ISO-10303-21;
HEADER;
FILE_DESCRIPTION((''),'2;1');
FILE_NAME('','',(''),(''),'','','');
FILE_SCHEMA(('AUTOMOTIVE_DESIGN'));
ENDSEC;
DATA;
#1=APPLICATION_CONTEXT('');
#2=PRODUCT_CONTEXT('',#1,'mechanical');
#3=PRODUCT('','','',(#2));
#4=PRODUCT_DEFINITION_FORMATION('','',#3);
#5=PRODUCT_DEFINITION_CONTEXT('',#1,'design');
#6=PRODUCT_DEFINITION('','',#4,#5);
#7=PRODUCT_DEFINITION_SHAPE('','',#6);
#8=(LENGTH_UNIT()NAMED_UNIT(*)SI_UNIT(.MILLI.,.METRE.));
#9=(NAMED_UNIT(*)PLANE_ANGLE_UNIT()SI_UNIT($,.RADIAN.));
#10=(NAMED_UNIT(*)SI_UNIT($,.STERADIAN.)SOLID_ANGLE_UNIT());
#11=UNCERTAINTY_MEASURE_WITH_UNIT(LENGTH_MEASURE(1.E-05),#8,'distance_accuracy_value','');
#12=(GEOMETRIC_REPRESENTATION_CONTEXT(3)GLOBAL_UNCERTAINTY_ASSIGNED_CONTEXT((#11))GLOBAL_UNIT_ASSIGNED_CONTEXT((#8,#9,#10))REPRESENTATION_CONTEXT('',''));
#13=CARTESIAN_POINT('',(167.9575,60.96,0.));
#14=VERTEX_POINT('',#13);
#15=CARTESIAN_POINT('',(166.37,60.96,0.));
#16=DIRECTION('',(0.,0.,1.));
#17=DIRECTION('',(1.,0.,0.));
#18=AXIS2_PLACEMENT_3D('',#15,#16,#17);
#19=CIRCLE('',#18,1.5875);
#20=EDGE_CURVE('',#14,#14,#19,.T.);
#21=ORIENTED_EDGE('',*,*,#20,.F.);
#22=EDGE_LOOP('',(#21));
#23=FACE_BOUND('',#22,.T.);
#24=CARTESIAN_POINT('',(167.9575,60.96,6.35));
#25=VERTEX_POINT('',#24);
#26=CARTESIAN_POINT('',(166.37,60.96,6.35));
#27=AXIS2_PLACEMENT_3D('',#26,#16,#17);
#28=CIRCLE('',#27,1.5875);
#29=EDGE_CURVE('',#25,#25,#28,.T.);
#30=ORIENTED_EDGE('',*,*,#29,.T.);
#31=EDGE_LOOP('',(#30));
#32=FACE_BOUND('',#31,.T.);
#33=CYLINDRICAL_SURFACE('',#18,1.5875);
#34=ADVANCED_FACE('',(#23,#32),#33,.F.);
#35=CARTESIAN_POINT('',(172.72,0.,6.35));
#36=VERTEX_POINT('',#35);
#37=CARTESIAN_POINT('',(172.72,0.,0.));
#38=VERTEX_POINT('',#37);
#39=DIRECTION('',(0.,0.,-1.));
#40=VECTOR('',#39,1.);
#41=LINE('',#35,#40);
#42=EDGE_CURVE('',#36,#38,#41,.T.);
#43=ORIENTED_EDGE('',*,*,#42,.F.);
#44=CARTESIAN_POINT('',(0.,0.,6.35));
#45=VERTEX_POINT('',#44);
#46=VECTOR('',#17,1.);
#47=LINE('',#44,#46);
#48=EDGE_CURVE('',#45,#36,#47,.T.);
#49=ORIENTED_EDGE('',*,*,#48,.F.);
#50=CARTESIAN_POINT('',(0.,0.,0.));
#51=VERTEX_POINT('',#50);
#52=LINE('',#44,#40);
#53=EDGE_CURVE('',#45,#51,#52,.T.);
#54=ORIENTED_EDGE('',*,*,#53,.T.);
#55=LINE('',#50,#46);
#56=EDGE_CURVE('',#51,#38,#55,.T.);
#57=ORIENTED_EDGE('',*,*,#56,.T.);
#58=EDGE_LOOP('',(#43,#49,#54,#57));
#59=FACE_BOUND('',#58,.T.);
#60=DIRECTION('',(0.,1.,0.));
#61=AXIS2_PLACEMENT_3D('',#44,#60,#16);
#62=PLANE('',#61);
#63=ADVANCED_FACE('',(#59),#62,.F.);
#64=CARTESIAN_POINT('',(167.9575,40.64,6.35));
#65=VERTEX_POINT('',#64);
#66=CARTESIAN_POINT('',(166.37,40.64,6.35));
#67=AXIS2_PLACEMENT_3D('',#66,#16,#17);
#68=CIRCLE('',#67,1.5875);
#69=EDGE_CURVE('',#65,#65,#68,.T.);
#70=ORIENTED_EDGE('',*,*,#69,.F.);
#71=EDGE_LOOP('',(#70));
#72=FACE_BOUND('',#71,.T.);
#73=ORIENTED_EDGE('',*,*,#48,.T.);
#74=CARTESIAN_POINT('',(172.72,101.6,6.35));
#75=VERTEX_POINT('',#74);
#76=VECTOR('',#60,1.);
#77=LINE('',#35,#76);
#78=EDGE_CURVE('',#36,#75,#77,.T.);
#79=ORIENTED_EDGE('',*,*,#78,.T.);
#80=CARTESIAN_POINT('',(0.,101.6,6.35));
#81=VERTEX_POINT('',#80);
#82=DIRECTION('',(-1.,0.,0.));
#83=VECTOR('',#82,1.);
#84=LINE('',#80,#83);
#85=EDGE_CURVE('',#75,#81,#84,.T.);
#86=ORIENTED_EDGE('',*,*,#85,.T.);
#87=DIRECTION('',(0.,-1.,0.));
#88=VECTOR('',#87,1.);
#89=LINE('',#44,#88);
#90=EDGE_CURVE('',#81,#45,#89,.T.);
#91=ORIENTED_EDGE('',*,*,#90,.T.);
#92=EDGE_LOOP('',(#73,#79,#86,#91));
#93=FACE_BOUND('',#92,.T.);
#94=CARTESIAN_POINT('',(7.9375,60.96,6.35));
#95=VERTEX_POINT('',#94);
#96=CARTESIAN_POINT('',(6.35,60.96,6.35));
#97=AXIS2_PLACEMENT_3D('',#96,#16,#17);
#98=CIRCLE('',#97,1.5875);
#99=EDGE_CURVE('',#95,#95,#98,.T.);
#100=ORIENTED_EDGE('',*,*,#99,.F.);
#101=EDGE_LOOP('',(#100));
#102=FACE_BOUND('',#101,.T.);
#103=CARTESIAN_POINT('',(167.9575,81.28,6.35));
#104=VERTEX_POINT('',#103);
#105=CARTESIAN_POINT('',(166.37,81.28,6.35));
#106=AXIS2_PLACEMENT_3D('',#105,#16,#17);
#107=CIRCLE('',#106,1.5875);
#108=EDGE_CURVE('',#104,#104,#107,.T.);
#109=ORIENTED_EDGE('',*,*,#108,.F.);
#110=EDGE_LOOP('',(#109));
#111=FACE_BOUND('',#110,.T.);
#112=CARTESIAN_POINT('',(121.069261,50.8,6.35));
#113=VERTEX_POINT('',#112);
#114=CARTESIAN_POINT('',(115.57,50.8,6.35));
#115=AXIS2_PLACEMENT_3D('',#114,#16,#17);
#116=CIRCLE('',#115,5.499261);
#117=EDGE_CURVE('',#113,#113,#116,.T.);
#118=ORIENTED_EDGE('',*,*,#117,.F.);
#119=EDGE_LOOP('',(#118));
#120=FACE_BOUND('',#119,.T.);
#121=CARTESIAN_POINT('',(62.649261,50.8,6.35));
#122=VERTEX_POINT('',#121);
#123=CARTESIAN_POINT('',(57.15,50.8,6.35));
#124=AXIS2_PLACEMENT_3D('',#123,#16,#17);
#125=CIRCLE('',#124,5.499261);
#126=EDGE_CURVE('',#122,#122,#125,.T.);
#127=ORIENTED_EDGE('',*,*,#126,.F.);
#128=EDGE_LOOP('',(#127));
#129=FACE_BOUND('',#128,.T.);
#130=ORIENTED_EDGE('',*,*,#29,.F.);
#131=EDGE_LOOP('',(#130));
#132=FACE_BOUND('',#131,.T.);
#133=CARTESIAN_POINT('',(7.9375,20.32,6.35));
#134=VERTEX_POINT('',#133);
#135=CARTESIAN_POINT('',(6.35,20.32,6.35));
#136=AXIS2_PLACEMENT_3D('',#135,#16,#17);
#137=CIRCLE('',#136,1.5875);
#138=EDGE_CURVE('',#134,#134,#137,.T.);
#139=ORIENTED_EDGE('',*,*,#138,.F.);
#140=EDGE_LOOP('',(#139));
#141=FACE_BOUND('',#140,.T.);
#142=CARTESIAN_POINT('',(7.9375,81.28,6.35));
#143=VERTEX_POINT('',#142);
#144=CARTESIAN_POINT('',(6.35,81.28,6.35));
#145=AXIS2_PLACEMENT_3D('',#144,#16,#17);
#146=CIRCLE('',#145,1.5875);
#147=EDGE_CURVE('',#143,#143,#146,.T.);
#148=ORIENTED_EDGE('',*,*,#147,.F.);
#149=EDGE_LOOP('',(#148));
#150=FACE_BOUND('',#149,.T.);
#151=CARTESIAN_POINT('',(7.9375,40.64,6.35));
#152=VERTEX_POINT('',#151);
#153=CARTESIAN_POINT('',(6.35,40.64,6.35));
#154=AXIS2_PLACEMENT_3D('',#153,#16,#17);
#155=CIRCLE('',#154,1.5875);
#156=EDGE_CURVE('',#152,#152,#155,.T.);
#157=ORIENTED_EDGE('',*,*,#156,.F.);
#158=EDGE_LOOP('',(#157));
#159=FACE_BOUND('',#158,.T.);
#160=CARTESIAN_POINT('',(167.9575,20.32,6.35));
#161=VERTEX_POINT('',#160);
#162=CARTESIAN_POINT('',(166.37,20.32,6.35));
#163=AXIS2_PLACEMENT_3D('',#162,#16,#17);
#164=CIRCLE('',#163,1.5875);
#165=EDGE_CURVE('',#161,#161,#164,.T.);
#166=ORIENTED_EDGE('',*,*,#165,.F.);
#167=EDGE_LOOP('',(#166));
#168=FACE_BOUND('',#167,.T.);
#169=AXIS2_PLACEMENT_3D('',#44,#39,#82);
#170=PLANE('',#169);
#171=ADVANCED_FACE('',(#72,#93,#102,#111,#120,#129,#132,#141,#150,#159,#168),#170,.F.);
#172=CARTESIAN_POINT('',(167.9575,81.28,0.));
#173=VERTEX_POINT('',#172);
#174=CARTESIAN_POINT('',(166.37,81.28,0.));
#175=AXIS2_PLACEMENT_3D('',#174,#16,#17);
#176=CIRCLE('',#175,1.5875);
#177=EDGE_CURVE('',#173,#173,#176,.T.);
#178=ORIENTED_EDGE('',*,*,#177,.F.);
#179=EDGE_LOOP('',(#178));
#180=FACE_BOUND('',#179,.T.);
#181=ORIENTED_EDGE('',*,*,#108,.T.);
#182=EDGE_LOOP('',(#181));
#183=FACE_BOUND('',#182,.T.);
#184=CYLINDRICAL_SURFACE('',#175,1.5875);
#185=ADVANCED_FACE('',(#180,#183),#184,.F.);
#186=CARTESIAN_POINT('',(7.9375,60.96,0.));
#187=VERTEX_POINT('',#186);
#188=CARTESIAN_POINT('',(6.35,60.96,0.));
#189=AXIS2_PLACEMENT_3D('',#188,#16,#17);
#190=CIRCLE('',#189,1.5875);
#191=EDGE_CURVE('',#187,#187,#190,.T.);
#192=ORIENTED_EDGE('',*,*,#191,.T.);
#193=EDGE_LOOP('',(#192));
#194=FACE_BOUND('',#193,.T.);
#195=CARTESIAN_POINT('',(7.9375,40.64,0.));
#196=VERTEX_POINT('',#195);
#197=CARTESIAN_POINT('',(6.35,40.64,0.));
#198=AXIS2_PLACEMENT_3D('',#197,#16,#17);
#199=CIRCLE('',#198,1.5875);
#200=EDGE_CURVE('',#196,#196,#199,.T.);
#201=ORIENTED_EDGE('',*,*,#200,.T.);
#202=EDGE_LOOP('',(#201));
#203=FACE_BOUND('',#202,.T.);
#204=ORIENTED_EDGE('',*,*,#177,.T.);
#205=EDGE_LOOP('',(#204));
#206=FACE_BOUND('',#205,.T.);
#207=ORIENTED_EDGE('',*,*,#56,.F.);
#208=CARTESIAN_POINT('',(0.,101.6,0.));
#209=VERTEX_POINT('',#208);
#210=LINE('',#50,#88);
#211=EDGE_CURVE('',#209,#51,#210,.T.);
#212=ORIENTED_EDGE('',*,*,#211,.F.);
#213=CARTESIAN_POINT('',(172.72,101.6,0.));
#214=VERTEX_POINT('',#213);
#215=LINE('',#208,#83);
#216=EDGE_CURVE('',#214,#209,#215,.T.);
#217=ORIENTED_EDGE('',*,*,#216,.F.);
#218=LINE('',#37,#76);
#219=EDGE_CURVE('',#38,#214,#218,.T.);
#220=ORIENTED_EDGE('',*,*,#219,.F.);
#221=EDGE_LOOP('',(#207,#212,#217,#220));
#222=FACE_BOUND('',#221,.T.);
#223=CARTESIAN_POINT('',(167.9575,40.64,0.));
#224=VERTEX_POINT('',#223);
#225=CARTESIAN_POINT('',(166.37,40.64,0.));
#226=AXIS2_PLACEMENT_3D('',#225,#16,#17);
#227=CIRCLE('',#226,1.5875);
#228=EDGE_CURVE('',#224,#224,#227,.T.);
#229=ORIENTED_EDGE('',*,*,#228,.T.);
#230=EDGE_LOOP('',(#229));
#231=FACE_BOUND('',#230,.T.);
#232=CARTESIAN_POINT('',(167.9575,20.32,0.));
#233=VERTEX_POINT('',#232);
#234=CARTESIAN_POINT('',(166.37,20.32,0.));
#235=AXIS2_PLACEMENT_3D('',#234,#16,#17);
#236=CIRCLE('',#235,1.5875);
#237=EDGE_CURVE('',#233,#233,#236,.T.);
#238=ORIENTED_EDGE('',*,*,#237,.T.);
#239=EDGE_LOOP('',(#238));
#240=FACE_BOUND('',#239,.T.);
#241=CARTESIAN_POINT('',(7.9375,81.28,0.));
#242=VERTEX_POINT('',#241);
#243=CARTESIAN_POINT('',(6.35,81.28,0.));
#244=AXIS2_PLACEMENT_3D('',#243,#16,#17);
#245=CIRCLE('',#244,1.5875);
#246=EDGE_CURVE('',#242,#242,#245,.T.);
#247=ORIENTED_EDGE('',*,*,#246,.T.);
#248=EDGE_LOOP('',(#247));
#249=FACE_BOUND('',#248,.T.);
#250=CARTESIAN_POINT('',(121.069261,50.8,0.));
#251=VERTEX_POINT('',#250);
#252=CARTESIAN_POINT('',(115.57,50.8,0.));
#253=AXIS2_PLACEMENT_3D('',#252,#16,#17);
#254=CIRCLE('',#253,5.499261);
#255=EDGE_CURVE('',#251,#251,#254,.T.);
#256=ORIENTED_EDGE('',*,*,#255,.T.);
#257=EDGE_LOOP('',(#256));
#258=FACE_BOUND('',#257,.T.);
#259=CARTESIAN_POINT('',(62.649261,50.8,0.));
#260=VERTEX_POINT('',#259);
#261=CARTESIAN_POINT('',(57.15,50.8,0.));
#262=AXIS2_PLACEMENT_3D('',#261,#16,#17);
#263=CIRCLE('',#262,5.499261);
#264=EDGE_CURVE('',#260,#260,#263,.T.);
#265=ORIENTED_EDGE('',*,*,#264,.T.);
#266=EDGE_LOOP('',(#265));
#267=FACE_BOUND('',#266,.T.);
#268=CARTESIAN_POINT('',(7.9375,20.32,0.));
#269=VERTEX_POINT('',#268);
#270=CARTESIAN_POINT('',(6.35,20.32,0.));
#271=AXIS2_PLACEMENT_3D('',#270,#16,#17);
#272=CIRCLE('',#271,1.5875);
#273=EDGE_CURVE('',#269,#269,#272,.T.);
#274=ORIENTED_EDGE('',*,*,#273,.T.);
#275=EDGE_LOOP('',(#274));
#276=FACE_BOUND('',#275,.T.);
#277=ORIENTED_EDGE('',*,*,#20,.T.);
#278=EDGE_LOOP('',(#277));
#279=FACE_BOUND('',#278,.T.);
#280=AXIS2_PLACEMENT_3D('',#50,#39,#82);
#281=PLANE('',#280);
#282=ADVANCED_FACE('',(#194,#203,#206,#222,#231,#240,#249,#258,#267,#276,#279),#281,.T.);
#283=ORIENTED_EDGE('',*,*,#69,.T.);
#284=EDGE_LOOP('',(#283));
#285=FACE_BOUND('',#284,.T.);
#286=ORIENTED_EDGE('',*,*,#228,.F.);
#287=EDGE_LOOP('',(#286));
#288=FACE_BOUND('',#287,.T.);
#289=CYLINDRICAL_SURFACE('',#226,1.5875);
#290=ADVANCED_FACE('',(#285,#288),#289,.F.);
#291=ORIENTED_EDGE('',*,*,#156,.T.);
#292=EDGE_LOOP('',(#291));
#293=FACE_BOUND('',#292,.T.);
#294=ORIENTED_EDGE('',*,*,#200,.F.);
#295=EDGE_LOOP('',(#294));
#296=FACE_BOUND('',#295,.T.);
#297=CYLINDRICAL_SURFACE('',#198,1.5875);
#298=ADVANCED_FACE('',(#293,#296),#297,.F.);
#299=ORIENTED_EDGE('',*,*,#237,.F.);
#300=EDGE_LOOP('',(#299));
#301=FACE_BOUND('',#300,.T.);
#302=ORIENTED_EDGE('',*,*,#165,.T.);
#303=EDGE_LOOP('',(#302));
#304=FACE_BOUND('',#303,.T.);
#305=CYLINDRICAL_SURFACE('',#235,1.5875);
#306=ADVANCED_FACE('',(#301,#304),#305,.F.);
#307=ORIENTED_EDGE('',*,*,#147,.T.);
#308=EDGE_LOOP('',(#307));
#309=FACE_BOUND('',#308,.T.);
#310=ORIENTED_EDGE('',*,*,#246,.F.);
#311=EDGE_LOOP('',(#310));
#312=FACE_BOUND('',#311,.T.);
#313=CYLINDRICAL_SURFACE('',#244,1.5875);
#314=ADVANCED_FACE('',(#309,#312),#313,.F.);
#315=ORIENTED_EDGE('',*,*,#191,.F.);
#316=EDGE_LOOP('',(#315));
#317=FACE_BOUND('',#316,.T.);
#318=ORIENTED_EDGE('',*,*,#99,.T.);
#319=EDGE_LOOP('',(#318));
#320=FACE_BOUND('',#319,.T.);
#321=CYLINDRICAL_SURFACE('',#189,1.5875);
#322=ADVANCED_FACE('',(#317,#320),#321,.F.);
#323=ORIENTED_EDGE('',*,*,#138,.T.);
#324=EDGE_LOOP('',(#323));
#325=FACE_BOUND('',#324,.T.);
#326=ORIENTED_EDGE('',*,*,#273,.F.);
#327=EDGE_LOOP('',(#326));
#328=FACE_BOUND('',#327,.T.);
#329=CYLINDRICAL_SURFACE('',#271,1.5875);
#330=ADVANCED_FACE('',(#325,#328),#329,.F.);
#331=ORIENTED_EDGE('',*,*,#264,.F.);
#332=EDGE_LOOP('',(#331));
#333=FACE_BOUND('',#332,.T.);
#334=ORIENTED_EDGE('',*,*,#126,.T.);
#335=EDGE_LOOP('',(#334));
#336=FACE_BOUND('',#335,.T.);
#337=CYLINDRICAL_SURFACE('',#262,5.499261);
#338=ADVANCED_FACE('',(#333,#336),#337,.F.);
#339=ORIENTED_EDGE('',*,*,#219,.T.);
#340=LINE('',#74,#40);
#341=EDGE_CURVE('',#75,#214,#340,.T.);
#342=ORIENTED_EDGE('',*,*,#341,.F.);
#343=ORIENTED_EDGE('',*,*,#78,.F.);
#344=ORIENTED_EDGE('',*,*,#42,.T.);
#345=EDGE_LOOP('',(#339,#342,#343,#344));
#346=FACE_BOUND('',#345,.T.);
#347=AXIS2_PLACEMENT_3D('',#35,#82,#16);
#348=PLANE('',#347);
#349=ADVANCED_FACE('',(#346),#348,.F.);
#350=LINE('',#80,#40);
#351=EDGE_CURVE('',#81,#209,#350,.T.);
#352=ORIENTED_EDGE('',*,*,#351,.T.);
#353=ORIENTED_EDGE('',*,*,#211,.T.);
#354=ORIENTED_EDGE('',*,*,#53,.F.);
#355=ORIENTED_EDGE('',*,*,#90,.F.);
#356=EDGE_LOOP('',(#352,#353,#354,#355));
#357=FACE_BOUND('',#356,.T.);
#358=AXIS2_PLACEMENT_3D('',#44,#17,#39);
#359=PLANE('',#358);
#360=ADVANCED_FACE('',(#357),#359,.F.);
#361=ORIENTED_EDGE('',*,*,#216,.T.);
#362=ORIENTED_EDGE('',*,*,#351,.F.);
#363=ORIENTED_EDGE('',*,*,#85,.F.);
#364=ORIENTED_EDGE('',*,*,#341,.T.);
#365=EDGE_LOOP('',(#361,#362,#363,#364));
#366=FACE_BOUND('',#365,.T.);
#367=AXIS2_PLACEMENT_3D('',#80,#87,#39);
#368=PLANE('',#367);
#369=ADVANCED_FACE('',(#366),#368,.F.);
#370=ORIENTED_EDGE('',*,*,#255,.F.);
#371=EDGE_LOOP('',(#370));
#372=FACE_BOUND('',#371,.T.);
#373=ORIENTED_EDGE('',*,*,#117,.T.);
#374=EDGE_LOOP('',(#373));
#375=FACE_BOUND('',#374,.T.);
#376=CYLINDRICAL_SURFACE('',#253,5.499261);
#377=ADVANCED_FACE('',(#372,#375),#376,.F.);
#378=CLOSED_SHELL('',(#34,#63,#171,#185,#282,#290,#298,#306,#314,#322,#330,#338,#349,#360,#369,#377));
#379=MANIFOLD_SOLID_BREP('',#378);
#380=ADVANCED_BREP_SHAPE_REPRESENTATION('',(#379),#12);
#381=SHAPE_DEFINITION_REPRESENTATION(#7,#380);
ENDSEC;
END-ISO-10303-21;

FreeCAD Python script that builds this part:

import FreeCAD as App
import Part
import Sketcher

V = App.Vector
Q = App.Units.Quantity

doc = App.newDocument("Part")
body = doc.addObject("PartDesign::Body", "Body")

# Sketch on XY plane
sketch1 = body.newObject("Sketcher::SketchObject", "Sketch")
sketch1.AttachmentSupport = (doc.getObject("XY_Plane"), [""])
sketch1.MapMode = "FlatFace"
sketch1.addGeometry(Part.LineSegment(V(0, 102, 0), V(0, 0, 0)), False)
sketch1.addGeometry(Part.LineSegment(V(0, 0, 0), V(173, 0, 0)), False)
sketch1.addGeometry(Part.LineSegment(V(173, 0, 0), V(173, 102, 0)), False)
sketch1.addGeometry(Part.LineSegment(V(173, 102, 0), V(0, 102, 0)), False)
sketch1.addConstraint(Sketcher.Constraint("Coincident", 0, 2, 1, 1))
sketch1.addConstraint(Sketcher.Constraint("Coincident", 1, 2, 2, 1))
sketch1.addConstraint(Sketcher.Constraint("Coincident", 2, 2, 3, 1))
sketch1.addConstraint(Sketcher.Constraint("Coincident", 3, 2, 0, 1))
sketch1.addConstraint(Sketcher.Constraint("Vertical", 0))
sketch1.addConstraint(Sketcher.Constraint("Horizontal", 1))
sketch1.addConstraint(Sketcher.Constraint("Vertical", 2))
sketch1.addConstraint(Sketcher.Constraint("Horizontal", 3))
sketch1.addConstraint(Sketcher.Constraint("Coincident", 0, 2, -1, 1))
sketch1.addConstraint(Sketcher.Constraint("DistanceY", 0, 2, 0, 1, Q("4 in")))
sketch1.addConstraint(Sketcher.Constraint("DistanceX", 1, 1, 1, 2, Q("6.8 in")))
pad1 = body.newObject("PartDesign::Pad", "Pad")
pad1.Profile = sketch1
pad1.Length = Q("0.25 in")

# Sketch on XY plane
sketch2 = body.newObject("Sketcher::SketchObject", "Sketch001")
sketch2.AttachmentSupport = (doc.getObject("XY_Plane"), [""])
sketch2.MapMode = "FlatFace"
sketch2.AttachmentOffset = App.Placement(V(0, 0, 0.25 * 25.4), App.Rotation())
sketch2.addGeometry(Part.Circle(V(6.3, 81.3, 0), V(0, 0, 1), 1.6), False)
sketch2.addGeometry(Part.Circle(V(6.3, 61, 0), V(0, 0, 1), 1.6), False)
sketch2.addGeometry(Part.Circle(V(6.3, 40.6, 0), V(0, 0, 1), 1.6), False)
sketch2.addGeometry(Part.Circle(V(6.3, 20.3, 0), V(0, 0, 1), 1.6), False)
sketch2.addGeometry(Part.Circle(V(166.4, 20.3, 0), V(0, 0, 1), 1.6), False)
sketch2.addGeometry(Part.Circle(V(166.4, 40.6, 0), V(0, 0, 1), 1.6), False)
sketch2.addGeometry(Part.Circle(V(166.4, 61, 0), V(0, 0, 1), 1.6), False)
sketch2.addGeometry(Part.Circle(V(166.4, 81.3, 0), V(0, 0, 1), 1.6), False)
sketch2.addConstraint(Sketcher.Constraint("Equal", 0, 1))
sketch2.addConstraint(Sketcher.Constraint("Equal", 1, 2))
sketch2.addConstraint(Sketcher.Constraint("Equal", 2, 3))
sketch2.addConstraint(Sketcher.Constraint("Equal", 3, 4))
sketch2.addConstraint(Sketcher.Constraint("Equal", 4, 5))
sketch2.addConstraint(Sketcher.Constraint("Equal", 5, 6))
sketch2.addConstraint(Sketcher.Constraint("Equal", 6, 7))
sketch2.addConstraint(Sketcher.Constraint("Horizontal", 3, 3, 4, 3))
sketch2.addConstraint(Sketcher.Constraint("Horizontal", 2, 3, 5, 3))
sketch2.addConstraint(Sketcher.Constraint("Horizontal", 1, 3, 6, 3))
sketch2.addConstraint(Sketcher.Constraint("Horizontal", 0, 3, 7, 3))
sketch2.addConstraint(Sketcher.Constraint("Vertical", 0, 3, 1, 3))
sketch2.addConstraint(Sketcher.Constraint("Vertical", 1, 3, 2, 3))
sketch2.addConstraint(Sketcher.Constraint("Vertical", 2, 3, 3, 3))
sketch2.addConstraint(Sketcher.Constraint("Vertical", 4, 3, 5, 3))
sketch2.addConstraint(Sketcher.Constraint("Vertical", 5, 3, 6, 3))
sketch2.addConstraint(Sketcher.Constraint("Vertical", 6, 3, 7, 3))
sketch2.addConstraint(Sketcher.Constraint("Diameter", 0, Q("0.125 in")))
sketch2.addConstraint(Sketcher.Constraint("DistanceY", -1, 1, 0, 3, Q("3.2 in")))
sketch2.addConstraint(Sketcher.Constraint("DistanceY", -1, 1, 1, 3, Q("2.4 in")))
sketch2.addConstraint(Sketcher.Constraint("DistanceY", -1, 1, 2, 3, Q("1.6 in")))
sketch2.addConstraint(Sketcher.Constraint("DistanceY", -1, 1, 3, 3, Q("0.8 in")))
sketch2.addConstraint(Sketcher.Constraint("DistanceX", 3, 3, 4, 3, Q("6.3 in")))
sketch2.addConstraint(Sketcher.Constraint("DistanceX", -1, 1, 0, 3, Q("0.25 in")))
pocket1 = body.newObject("PartDesign::Pocket", "Pocket")
pocket1.Profile = sketch2
pocket1.Length = Q("0.25 in")

# Sketch on XY plane
sketch3 = body.newObject("Sketcher::SketchObject", "Sketch002")
sketch3.AttachmentSupport = (doc.getObject("XY_Plane"), [""])
sketch3.MapMode = "FlatFace"
sketch3.AttachmentOffset = App.Placement(V(0, 0, 0.25 * 25.4), App.Rotation())
sketch3.addGeometry(Part.Circle(V(116, 51, 0), V(0, 0, 1), 5), False)
sketch3.addGeometry(Part.Circle(V(57, 51, 0), V(0, 0, 1), 5), False)
sketch3.addConstraint(Sketcher.Constraint("Equal", 0, 1))
sketch3.addConstraint(Sketcher.Constraint("Horizontal", 0, 3, 1, 3))
sketch3.addConstraint(Sketcher.Constraint("DistanceY", -1, 1, 0, 3, Q("2 in")))
sketch3.addConstraint(Sketcher.Constraint("DistanceX", 1, 3, 0, 3, Q("2.3 in")))
sketch3.addConstraint(Sketcher.Constraint("DistanceX", -1, 1, 0, 3, Q("4.55 in")))
sketch3.addConstraint(Sketcher.Constraint("Diameter", 0, 10.998523))
pocket2 = body.newObject("PartDesign::Pocket", "Pocket001")
pocket2.Profile = sketch3
pocket2.Length = Q("0.25 in")

doc.recompute()
